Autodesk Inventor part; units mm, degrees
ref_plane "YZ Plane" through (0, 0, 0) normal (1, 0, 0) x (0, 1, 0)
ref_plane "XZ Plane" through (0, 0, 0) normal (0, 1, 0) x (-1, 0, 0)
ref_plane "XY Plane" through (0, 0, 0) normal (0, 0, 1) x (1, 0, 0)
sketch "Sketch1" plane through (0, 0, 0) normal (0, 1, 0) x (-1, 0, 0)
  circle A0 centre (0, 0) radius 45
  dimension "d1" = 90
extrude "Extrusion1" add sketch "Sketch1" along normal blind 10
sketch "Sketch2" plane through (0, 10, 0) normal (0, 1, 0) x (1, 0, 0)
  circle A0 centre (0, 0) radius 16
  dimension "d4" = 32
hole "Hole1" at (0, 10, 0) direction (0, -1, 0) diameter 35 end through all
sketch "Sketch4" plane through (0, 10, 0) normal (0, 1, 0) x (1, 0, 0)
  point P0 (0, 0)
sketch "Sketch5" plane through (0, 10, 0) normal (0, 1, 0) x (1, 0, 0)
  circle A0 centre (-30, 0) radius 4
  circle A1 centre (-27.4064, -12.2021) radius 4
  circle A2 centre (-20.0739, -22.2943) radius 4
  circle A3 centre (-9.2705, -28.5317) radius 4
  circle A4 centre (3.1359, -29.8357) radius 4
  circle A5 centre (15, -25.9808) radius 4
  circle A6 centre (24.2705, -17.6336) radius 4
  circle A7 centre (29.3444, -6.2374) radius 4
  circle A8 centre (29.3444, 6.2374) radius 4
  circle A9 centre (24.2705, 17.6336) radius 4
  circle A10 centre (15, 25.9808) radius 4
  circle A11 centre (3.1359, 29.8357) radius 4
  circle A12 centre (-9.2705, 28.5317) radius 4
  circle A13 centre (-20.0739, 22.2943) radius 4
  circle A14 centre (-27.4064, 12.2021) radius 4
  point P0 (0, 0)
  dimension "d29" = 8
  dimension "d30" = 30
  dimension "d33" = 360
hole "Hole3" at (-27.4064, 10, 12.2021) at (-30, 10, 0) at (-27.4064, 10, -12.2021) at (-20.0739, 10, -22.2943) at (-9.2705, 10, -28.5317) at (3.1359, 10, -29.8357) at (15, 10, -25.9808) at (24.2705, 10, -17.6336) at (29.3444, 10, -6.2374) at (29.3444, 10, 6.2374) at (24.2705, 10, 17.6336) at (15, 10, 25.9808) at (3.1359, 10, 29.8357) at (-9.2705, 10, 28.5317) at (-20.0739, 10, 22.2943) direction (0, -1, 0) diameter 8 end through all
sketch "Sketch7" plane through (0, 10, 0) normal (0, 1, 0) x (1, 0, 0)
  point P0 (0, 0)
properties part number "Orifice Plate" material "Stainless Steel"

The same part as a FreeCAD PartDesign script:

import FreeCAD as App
import Part
import Sketcher
from FreeCAD import Vector

doc = App.newDocument("Part")
params = doc.addObject("Spreadsheet::Sheet", "Params")
for row, (alias, value) in enumerate([
    ("sketch1_diameter", "90 mm"),
    ("pad1_length", "10 mm"),
    ("sketch2_diameter", "35 mm"),
    ("hole_diameter", "35 mm"),
    ("sketch3_diameter", "8 mm"),
    ("hole2_diameter", "8 mm"),
], start=1):
    params.set(f"A{row}", alias)
    params.set(f"B{row}", "=" + value)
    params.setAlias(f"B{row}", alias)

body = doc.addObject("PartDesign::Body", "Body")

sketch1 = doc.addObject("Sketcher::SketchObject", "Sketch")
body.addObject(sketch1)
sketch1.AttachmentSupport = (doc.XZ_Plane, [""])
sketch1.MapMode = "FlatFace"
sketch1.addGeometry(Part.Circle(Vector(0, 0, 0), Vector(0, 0, 1), 45), False)
sketch1.addConstraint(Sketcher.Constraint("Coincident", 0, 3, -1, 1))
sketch1.addConstraint(Sketcher.Constraint("Diameter", 0, 90.0))
sketch1.setExpression("Constraints[1]", "Params.sketch1_diameter")
pad1 = doc.addObject("PartDesign::Pad", "Pad")
body.addObject(pad1)
pad1.Profile = sketch1
pad1.setExpression("Length", "Params.pad1_length")
pad1.Reversed = True

sketch2 = doc.addObject("Sketcher::SketchObject", "Sketch001")
body.addObject(sketch2)
sketch2.AttachmentSupport = (doc.XZ_Plane, [""])
sketch2.MapMode = "FlatFace"
sketch2.AttachmentOffset = App.Placement(Vector(0, 0, -10), App.Rotation())
sketch2.addGeometry(Part.Circle(Vector(0, 0, 0), Vector(0, 0, 1), 18), False)
sketch2.addConstraint(Sketcher.Constraint("Coincident", 0, 3, -1, 1))
sketch2.addConstraint(Sketcher.Constraint("Diameter", 0, 35.0))
sketch2.setExpression("Constraints[1]", "Params.sketch2_diameter")
doc.recompute()
hole = doc.addObject("PartDesign::Hole", "Hole")
body.addObject(hole)
hole.Profile = sketch2
hole.ThreadType = "None"
hole.setExpression("Diameter", "Params.hole_diameter")
hole.DepthType = "ThroughAll"
hole.Reversed = True

sketch3 = doc.addObject("Sketcher::SketchObject", "Sketch002")
body.addObject(sketch3)
sketch3.AttachmentSupport = (doc.XZ_Plane, [""])
sketch3.MapMode = "FlatFace"
sketch3.AttachmentOffset = App.Placement(Vector(0, 0, -10), App.Rotation())
sketch3.addGeometry(Part.Circle(Vector(-27.4, 12.2, 0), Vector(0, 0, 1), 4), False)
sketch3.addGeometry(Part.Circle(Vector(-30, 0, 0), Vector(0, 0, 1), 4), False)
sketch3.addGeometry(Part.Circle(Vector(-27.4, -12.2, 0), Vector(0, 0, 1), 4), False)
sketch3.addGeometry(Part.Circle(Vector(-20.1, -22.3, 0), Vector(0, 0, 1), 4), False)
sketch3.addGeometry(Part.Circle(Vector(-9.3, -28.5, 0), Vector(0, 0, 1), 4), False)
sketch3.addGeometry(Part.Circle(Vector(3.1, -29.8, 0), Vector(0, 0, 1), 4), False)
sketch3.addGeometry(Part.Circle(Vector(15, -26, 0), Vector(0, 0, 1), 4), False)
sketch3.addGeometry(Part.Circle(Vector(24.3, -17.6, 0), Vector(0, 0, 1), 4), False)
sketch3.addGeometry(Part.Circle(Vector(29.3, -6.2, 0), Vector(0, 0, 1), 4), False)
sketch3.addGeometry(Part.Circle(Vector(29.3, 6.2, 0), Vector(0, 0, 1), 4), False)
sketch3.addGeometry(Part.Circle(Vector(24.3, 17.6, 0), Vector(0, 0, 1), 4), False)
sketch3.addGeometry(Part.Circle(Vector(15, 26, 0), Vector(0, 0, 1), 4), False)
sketch3.addGeometry(Part.Circle(Vector(3.1, 29.8, 0), Vector(0, 0, 1), 4), False)
sketch3.addGeometry(Part.Circle(Vector(-9.3, 28.5, 0), Vector(0, 0, 1), 4), False)
sketch3.addGeometry(Part.Circle(Vector(-20.1, 22.3, 0), Vector(0, 0, 1), 4), False)
sketch3.addConstraint(Sketcher.Constraint("Equal", 0, 1))
sketch3.addConstraint(Sketcher.Constraint("Equal", 1, 2))
sketch3.addConstraint(Sketcher.Constraint("Equal", 2, 3))
sketch3.addConstraint(Sketcher.Constraint("Equal", 3, 4))
sketch3.addConstraint(Sketcher.Constraint("Equal", 4, 5))
sketch3.addConstraint(Sketcher.Constraint("Equal", 5, 6))
sketch3.addConstraint(Sketcher.Constraint("Equal", 6, 7))
sketch3.addConstraint(Sketcher.Constraint("Equal", 7, 8))
sketch3.addConstraint(Sketcher.Constraint("Equal", 8, 9))
sketch3.addConstraint(Sketcher.Constraint("Equal", 9, 10))
sketch3.addConstraint(Sketcher.Constraint("Equal", 10, 11))
sketch3.addConstraint(Sketcher.Constraint("Equal", 11, 12))
sketch3.addConstraint(Sketcher.Constraint("Equal", 12, 13))
sketch3.addConstraint(Sketcher.Constraint("Equal", 13, 14))
sketch3.addConstraint(Sketcher.Constraint("Symmetric", 0, 3, 2, 3, -1))
sketch3.addConstraint(Sketcher.Constraint("Symmetric", 8, 3, 9, 3, -1))
sketch3.addConstraint(Sketcher.Constraint("Symmetric", 7, 3, 10, 3, -1))
sketch3.addConstraint(Sketcher.Constraint("Symmetric", 6, 3, 11, 3, -1))
sketch3.addConstraint(Sketcher.Constraint("Symmetric", 5, 3, 12, 3, -1))
sketch3.addConstraint(Sketcher.Constraint("Symmetric", 4, 3, 13, 3, -1))
sketch3.addConstraint(Sketcher.Constraint("Symmetric", 3, 3, 14, 3, -1))
sketch3.addConstraint(Sketcher.Constraint("PointOnObject", 1, 3, -1))
sketch3.addConstraint(Sketcher.Constraint("Diameter", 0, 8.0))
sketch3.addConstraint(Sketcher.Constraint("DistanceX", 1, 3, -1, 1, 30.0))
sketch3.addConstraint(Sketcher.Constraint("DistanceX", -1, 1, 6, 3, 15.0))
sketch3.addConstraint(Sketcher.Constraint("DistanceY", -1, 1, 0, 3, 12.202))
sketch3.addConstraint(Sketcher.Constraint("DistanceX", 3, 3, -1, 1, 20.074))
sketch3.addConstraint(Sketcher.Constraint("DistanceX", -1, 1, 5, 3, 3.136))
sketch3.addConstraint(Sketcher.Constraint("DistanceX", 2, 3, 4, 3, 18.136))
sketch3.addConstraint(Sketcher.Constraint("DistanceY", 5, 3, 4, 3, 1.304))
sketch3.addConstraint(Sketcher.Constraint("DistanceY", 5, 3, 6, 3, 3.855))
sketch3.addConstraint(Sketcher.Constraint("DistanceY", 5, 3, 7, 3, 12.202))
sketch3.addConstraint(Sketcher.Constraint("DistanceX", 4, 3, 7, 3, 33.541))
sketch3.addConstraint(Sketcher.Constraint("DistanceX", 7, 3, 8, 3, 5.074))
sketch3.addConstraint(Sketcher.Constraint("DistanceY", 3, 3, 8, 3, 16.057))
sketch3.addConstraint(Sketcher.Constraint("DistanceY", 7, 3, 9, 3, 23.871))
sketch3.addConstraint(Sketcher.Constraint("DistanceX", 0, 3, -1, 1, 27.4064))
sketch3.addConstraint(Sketcher.Constraint("DistanceY", 3, 3, -1, 1, 22.2943))
sketch3.setExpression("Constraints[22]", "Params.sketch3_diameter")
doc.recompute()
hole2 = doc.addObject("PartDesign::Hole", "Hole001")
body.addObject(hole2)
hole2.Profile = sketch3
hole2.ThreadType = "None"
hole2.setExpression("Diameter", "Params.hole2_diameter")
hole2.DepthType = "ThroughAll"
hole2.Reversed = True

doc.recompute()
